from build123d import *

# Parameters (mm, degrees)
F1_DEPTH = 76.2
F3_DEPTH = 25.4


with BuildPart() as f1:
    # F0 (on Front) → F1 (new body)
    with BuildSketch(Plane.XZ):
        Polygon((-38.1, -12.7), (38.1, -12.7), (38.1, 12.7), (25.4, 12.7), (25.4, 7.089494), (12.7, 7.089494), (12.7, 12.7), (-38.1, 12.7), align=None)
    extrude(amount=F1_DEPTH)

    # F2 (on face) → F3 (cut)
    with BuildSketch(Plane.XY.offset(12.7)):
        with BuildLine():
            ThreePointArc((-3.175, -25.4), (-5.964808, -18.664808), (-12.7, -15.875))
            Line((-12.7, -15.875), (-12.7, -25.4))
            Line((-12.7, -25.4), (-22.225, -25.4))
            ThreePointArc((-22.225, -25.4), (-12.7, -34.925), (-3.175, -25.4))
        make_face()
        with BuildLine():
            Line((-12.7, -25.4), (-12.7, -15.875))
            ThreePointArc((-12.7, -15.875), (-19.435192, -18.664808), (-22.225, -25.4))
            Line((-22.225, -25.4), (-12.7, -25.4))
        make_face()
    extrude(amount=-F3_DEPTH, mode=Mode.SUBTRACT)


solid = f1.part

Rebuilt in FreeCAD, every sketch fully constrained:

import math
import FreeCAD as App
import Part
import Sketcher

V = App.Vector
Q = App.Units.Quantity


def add_polygon(sketch, points):
    """Adds a closed chain of lines whose ends are joined by coincident constraints."""
    first, n = sketch.GeometryCount, len(points)
    for a, b in zip(points, points[1:] + points[:1]):
        sketch.addGeometry(Part.LineSegment(App.Vector(*a, 0), App.Vector(*b, 0)), False)
    for i in range(n):
        sketch.addConstraint(Sketcher.Constraint("Coincident", first + i, 2, first + (i + 1) % n, 1))

doc = App.newDocument("Part")
params = doc.addObject("Spreadsheet::Sheet", "Params")
for row, (alias, value) in enumerate([
    ("sketch1_width", "3 in"),
    ("sketch1_width2", "2 in"),
    ("sketch1_height", "1 in"),
    ("pad1_length", "3 in"),
    ("sketch2_radius", "0.375 in"),
    ("pocket1_length", "1 in"),
], start=1):
    params.set(f"A{row}", alias)
    params.set(f"B{row}", "=" + value)
    params.setAlias(f"B{row}", alias)

body = doc.addObject("PartDesign::Body", "Body")

sketch1 = doc.addObject("Sketcher::SketchObject", "Sketch")
body.addObject(sketch1)
sketch1.AttachmentSupport = (doc.XZ_Plane, [""])
sketch1.MapMode = "FlatFace"
add_polygon(sketch1, [(-38.1, -12.7), (38.1, -12.7), (38.1, 12.7), (25.4, 12.7), (25.4, 7.089494), (12.7, 7.089494), (12.7, 12.7), (-38.1, 12.7)])
sketch1.addConstraint(Sketcher.Constraint("Horizontal", 0))
sketch1.addConstraint(Sketcher.Constraint("Vertical", 1))
sketch1.addConstraint(Sketcher.Constraint("Horizontal", 2))
sketch1.addConstraint(Sketcher.Constraint("Vertical", 3))
sketch1.addConstraint(Sketcher.Constraint("Horizontal", 4))
sketch1.addConstraint(Sketcher.Constraint("Vertical", 5))
sketch1.addConstraint(Sketcher.Constraint("Horizontal", 6))
sketch1.addConstraint(Sketcher.Constraint("Vertical", 7))
sketch1.addConstraint(Sketcher.Constraint("Symmetric", 0, 2, 6, 2, -1, 1))
sketch1.addConstraint(Sketcher.Constraint("Horizontal", 2, 2, 5, 2))
sketch1.addConstraint(Sketcher.Constraint("Equal", 2, 4))
sketch1.addConstraint(Sketcher.Constraint("DistanceX", 0, 1, 0, 2, Q("3 in")))
sketch1.addConstraint(Sketcher.Constraint("DistanceX", 6, 2, 6, 1, Q("2 in")))
sketch1.addConstraint(Sketcher.Constraint("DistanceY", 1, 1, 1, 2, Q("1 in")))
sketch1.addConstraint(Sketcher.Constraint("DistanceY", 3, 2, 3, 1, 5.610506))
sketch1.setExpression("Constraints[19]", "Params.sketch1_width")
sketch1.setExpression("Constraints[20]", "Params.sketch1_width2")
sketch1.setExpression("Constraints[21]", "Params.sketch1_height")
pad1 = doc.addObject("PartDesign::Pad", "Pad")
body.addObject(pad1)
pad1.Profile = sketch1
pad1.setExpression("Length", "Params.pad1_length")

sketch2 = doc.addObject("Sketcher::SketchObject", "Sketch001")
body.addObject(sketch2)
sketch2.AttachmentSupport = (doc.XY_Plane, [""])
sketch2.MapMode = "FlatFace"
sketch2.AttachmentOffset = App.Placement(V(0, 0, 0.5 * 25.4), App.Rotation())
sketch2.addGeometry(Part.ArcOfCircle(Part.Circle(V(-12.7, -25.4, 0), V(0, 0, 1), 9.525), math.radians(0.000002), math.radians(89.999998)), False)
sketch2.addGeometry(Part.ArcOfCircle(Part.Circle(V(-12.7, -25.4, 0), V(0, 0, 1), 9.525), math.radians(90.000002), math.radians(179.999998)), False)
sketch2.addGeometry(Part.ArcOfCircle(Part.Circle(V(-12.7, -25.4, 0), V(0, 0, 1), 9.525), math.radians(180), math.radians(360)), False)
sketch2.addConstraint(Sketcher.Constraint("Tangent", 0, 2, 1, 1))
sketch2.addConstraint(Sketcher.Constraint("Tangent", 1, 2, 2, 1))
sketch2.addConstraint(Sketcher.Constraint("Tangent", 2, 2, 0, 1))
sketch2.addConstraint(Sketcher.Constraint("Horizontal", 2, 3, 1, 2))
sketch2.addConstraint(Sketcher.Constraint("Horizontal", 1, 2, 2, 2))
sketch2.addConstraint(Sketcher.Constraint("Vertical", 2, 3, 0, 2))
sketch2.addConstraint(Sketcher.Constraint("DistanceY", 0, 3, -1, 1, Q("1 in")))
sketch2.addConstraint(Sketcher.Constraint("Radius", 0, Q("0.375 in")))
sketch2.addConstraint(Sketcher.Constraint("DistanceX", 0, 3, -1, 1, Q("0.5 in")))
sketch2.setExpression("Constraints[7]", "Params.sketch2_radius")
pocket1 = doc.addObject("PartDesign::Pocket", "Pocket")
body.addObject(pocket1)
pocket1.Profile = sketch2
pocket1.setExpression("Length", "Params.pocket1_length")

doc.recompute()
